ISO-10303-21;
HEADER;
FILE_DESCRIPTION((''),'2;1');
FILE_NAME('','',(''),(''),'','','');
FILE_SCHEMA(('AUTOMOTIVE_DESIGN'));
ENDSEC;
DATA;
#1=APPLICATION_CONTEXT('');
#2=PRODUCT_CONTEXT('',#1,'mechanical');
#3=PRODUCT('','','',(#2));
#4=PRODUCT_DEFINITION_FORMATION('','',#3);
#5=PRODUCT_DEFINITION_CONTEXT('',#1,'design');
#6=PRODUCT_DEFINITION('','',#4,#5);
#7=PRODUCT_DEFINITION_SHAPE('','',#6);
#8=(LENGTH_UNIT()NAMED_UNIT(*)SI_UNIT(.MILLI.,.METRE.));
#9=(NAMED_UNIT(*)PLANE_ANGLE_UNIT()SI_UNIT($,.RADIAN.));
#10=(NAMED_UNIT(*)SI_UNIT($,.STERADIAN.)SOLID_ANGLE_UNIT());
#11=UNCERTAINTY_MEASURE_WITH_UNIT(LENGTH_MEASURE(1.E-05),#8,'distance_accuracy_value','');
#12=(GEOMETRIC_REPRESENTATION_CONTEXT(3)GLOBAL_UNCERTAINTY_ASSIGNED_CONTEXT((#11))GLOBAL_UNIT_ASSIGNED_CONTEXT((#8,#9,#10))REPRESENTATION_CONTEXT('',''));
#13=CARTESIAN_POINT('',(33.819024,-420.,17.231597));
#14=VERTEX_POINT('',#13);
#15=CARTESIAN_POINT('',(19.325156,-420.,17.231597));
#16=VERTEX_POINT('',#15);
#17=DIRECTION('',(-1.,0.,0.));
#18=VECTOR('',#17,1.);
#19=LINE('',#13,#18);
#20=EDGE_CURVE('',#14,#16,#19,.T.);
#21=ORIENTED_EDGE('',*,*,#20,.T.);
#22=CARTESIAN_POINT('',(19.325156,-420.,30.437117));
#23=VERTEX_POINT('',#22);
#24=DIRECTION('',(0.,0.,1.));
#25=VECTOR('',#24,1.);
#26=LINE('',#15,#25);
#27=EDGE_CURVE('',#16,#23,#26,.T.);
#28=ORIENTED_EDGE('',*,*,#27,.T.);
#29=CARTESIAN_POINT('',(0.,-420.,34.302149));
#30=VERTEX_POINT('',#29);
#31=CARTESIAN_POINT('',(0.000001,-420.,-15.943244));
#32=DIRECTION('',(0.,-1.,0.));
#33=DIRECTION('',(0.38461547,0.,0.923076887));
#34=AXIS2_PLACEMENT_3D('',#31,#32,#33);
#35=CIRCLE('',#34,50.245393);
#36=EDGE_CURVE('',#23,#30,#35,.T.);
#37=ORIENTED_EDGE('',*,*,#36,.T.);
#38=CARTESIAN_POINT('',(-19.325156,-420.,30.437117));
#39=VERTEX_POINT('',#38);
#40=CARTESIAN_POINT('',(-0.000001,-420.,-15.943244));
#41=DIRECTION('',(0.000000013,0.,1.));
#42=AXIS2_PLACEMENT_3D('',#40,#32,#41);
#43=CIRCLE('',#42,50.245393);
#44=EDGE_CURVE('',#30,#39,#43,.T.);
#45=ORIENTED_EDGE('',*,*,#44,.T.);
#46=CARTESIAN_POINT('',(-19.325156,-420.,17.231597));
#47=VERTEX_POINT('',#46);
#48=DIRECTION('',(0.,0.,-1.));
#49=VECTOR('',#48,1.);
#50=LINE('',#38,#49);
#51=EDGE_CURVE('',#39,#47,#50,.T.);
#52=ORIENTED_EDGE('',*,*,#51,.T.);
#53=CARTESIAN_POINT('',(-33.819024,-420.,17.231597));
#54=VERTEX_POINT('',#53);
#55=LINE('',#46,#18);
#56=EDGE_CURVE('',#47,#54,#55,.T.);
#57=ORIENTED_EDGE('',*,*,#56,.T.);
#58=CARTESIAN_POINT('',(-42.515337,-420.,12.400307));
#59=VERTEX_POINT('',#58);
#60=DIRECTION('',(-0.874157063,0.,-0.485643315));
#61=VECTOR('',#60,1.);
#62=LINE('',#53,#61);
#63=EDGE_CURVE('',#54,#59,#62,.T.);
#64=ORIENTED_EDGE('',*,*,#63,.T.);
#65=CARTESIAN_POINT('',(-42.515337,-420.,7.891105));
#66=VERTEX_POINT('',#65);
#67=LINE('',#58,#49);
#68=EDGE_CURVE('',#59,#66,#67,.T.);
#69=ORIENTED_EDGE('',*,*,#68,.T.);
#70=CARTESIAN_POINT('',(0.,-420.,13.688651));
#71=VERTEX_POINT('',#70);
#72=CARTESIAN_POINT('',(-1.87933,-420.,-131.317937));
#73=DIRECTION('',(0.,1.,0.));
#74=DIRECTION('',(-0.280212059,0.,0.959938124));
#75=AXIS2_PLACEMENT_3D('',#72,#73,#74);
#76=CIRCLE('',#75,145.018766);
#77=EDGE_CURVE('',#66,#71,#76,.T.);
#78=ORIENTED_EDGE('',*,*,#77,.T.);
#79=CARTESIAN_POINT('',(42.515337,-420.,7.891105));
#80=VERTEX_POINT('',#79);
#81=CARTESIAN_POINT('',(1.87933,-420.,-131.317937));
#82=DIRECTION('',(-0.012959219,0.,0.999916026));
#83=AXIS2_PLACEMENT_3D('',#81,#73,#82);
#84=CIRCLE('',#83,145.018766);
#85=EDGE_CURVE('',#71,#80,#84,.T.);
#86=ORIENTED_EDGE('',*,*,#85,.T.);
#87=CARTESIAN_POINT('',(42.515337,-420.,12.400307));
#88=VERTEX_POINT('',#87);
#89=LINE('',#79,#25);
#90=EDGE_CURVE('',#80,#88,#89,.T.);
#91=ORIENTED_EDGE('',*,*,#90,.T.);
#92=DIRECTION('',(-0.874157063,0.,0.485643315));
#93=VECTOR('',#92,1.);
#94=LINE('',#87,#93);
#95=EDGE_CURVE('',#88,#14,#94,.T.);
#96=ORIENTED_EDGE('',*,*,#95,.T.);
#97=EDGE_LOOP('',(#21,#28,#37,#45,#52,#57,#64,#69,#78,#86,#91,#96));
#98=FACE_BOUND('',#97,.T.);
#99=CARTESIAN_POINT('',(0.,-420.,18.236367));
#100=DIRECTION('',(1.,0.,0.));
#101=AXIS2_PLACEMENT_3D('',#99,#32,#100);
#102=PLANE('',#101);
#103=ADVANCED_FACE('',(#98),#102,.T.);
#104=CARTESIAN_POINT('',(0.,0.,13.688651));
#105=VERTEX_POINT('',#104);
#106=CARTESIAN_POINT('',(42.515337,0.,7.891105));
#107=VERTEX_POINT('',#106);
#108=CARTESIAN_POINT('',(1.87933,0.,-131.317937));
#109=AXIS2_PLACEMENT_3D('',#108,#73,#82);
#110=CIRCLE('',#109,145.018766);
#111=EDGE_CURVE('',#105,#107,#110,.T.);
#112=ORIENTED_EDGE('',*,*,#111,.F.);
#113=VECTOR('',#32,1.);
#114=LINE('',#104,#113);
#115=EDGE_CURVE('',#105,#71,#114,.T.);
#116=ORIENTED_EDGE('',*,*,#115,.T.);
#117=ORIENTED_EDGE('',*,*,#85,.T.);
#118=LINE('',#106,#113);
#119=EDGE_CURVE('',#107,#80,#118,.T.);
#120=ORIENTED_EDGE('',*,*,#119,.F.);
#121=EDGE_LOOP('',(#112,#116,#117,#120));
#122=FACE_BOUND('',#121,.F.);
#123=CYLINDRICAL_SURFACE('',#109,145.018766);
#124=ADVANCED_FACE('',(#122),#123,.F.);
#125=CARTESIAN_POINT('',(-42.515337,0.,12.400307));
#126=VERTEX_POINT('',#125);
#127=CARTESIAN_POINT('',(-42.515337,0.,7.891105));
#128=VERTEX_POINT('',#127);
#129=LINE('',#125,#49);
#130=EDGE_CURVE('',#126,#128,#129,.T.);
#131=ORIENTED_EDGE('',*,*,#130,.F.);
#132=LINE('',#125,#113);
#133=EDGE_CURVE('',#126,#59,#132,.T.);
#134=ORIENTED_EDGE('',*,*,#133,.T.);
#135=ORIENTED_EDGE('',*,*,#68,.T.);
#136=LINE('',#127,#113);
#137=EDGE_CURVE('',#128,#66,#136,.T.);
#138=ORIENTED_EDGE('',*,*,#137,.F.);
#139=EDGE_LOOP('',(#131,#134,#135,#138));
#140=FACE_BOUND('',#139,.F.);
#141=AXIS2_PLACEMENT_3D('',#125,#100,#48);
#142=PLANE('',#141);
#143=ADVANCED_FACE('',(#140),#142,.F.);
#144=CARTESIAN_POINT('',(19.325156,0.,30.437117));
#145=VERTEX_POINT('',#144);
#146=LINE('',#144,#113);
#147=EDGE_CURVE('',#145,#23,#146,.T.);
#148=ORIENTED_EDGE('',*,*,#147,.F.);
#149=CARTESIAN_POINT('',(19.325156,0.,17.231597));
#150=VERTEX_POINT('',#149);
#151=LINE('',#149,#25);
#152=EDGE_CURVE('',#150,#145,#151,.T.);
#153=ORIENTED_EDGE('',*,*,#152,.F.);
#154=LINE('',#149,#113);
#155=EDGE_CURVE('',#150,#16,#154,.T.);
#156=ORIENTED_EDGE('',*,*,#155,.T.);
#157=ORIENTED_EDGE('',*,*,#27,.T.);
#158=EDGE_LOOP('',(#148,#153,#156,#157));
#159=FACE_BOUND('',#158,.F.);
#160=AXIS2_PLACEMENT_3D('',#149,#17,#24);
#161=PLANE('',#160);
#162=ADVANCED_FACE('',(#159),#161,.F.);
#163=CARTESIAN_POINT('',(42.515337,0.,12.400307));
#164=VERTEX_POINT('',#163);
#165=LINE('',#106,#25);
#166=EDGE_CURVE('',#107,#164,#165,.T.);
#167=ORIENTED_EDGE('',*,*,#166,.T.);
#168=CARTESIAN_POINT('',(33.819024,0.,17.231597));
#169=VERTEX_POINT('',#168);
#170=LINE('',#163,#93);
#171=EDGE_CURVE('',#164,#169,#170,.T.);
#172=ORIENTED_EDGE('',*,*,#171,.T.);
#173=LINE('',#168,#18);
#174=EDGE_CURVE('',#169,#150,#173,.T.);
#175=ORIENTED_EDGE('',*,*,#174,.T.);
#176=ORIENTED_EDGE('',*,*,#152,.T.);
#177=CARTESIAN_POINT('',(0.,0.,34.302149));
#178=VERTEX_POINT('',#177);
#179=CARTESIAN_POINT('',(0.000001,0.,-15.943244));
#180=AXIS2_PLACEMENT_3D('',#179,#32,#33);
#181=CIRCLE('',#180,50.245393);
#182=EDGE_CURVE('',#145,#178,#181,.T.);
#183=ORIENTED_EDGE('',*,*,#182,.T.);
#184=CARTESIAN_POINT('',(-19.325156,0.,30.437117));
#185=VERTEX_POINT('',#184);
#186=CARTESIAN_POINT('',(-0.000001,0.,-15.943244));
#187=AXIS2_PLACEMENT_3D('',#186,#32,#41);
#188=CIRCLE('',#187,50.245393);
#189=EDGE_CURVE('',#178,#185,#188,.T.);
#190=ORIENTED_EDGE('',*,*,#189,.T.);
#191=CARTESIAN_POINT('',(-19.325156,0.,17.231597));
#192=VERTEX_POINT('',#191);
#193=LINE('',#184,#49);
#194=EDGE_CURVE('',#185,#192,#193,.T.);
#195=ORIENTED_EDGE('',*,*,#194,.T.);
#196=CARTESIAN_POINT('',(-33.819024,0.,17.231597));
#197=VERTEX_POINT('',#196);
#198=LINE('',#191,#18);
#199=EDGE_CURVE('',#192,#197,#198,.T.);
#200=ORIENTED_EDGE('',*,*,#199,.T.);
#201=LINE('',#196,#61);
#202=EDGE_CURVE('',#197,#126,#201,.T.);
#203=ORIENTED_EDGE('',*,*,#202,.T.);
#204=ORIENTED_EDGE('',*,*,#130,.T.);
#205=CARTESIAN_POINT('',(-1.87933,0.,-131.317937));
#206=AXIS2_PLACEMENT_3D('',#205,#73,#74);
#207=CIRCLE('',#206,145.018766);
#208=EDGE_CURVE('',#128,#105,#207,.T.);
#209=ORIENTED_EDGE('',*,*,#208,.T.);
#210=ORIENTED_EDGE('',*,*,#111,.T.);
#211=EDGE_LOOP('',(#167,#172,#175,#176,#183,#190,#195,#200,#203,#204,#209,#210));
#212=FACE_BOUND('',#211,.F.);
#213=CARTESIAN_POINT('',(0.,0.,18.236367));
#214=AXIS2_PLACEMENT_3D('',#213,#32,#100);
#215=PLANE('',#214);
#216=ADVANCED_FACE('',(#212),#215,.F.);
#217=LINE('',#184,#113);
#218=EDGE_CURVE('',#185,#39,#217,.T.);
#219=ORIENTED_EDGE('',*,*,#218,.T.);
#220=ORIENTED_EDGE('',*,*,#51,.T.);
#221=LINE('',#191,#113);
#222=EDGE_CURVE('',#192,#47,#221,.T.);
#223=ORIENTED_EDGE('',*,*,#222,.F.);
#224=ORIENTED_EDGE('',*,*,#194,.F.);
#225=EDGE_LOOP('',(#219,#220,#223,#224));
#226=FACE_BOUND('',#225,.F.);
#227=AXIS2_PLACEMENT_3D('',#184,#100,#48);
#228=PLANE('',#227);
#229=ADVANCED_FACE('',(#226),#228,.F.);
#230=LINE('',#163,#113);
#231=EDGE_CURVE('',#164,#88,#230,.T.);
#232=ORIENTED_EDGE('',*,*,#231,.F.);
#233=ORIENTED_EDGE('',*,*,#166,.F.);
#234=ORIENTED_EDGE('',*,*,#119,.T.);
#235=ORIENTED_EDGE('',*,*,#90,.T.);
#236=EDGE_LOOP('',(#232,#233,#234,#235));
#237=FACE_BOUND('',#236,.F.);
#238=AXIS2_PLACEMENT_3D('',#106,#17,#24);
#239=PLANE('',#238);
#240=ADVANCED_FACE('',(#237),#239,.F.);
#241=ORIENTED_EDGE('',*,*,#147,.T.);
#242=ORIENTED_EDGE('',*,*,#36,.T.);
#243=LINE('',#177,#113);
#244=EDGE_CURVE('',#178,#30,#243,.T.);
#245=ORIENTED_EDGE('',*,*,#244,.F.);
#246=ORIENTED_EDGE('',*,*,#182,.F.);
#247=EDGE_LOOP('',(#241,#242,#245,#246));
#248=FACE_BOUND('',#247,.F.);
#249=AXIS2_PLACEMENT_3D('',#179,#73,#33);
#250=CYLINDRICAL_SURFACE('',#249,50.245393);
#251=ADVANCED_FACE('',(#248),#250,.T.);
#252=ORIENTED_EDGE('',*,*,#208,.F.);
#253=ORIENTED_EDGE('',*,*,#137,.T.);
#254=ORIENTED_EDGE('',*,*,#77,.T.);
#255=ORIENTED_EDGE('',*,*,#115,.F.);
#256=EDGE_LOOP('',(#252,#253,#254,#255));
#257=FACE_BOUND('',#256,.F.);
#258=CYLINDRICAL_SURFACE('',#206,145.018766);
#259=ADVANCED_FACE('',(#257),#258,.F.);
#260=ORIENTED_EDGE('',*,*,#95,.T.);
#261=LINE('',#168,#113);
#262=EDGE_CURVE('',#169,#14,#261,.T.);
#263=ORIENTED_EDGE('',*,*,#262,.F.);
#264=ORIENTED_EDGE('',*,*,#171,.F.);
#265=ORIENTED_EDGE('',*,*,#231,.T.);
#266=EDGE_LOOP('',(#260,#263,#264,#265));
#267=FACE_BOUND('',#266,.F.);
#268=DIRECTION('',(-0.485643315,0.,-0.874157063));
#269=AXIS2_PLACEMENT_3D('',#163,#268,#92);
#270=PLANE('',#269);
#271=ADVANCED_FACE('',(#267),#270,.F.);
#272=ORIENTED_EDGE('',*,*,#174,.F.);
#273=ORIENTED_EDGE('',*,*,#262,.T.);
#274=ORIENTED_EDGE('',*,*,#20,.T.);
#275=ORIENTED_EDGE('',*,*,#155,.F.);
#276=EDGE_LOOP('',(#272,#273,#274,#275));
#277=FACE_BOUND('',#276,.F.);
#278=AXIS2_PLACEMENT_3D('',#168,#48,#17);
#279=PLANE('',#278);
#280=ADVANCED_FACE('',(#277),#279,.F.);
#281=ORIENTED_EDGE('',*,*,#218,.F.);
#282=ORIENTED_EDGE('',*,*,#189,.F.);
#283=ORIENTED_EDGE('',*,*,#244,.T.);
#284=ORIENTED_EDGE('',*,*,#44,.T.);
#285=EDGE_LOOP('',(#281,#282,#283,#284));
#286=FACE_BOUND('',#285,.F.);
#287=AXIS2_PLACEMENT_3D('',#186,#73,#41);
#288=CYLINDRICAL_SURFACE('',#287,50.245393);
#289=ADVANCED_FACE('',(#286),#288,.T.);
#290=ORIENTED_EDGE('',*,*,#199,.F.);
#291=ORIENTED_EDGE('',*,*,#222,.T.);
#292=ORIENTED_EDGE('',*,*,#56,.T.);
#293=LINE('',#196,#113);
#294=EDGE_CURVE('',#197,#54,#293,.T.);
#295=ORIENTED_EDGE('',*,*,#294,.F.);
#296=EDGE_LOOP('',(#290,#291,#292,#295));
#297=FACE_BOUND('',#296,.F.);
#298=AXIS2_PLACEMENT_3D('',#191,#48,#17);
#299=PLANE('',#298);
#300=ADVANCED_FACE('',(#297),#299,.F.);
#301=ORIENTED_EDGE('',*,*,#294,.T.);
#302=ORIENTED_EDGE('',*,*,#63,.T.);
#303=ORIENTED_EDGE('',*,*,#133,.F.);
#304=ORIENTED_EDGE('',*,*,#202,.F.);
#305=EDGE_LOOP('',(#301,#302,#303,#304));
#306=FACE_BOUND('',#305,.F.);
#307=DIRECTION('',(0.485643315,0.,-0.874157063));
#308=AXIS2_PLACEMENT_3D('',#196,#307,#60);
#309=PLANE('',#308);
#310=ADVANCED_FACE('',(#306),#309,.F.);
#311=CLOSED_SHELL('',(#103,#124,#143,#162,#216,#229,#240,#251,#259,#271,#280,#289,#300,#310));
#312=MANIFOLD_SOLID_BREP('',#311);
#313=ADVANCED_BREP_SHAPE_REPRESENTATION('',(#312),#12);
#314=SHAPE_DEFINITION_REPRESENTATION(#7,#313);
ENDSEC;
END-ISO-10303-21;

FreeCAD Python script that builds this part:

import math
import FreeCAD as App
import Part
import Sketcher
from FreeCAD import Vector
Q = App.Units.Quantity

doc = App.newDocument("Part")
body = doc.addObject("PartDesign::Body", "Body")

sketch1 = body.newObject("Sketcher::SketchObject", "Sketch")
sketch1.AttachmentSupport = (doc.getObject("XZ_Plane"), [""])
sketch1.MapMode = "FlatFace"
sketch1.addGeometry(Part.LineSegment(Vector(19.3, 17.2, 0), Vector(19.3, 30.4, 0)), False)
sketch1.addGeometry(Part.ArcOfCircle(Part.Circle(Vector(0, -15.9, 0), Vector(0, 0, 1), 50.2), math.radians(67), math.radians(90)), False)
sketch1.addGeometry(Part.ArcOfCircle(Part.Circle(Vector(0, -15.9, 0), Vector(0, 0, 1), 50.2), math.radians(90), math.radians(113)), False)
sketch1.addGeometry(Part.LineSegment(Vector(-19.3, 30.4, 0), Vector(-19.3, 17.2, 0)), False)
sketch1.addGeometry(Part.LineSegment(Vector(-19.3, 17.2, 0), Vector(-33.8, 17.2, 0)), False)
sketch1.addGeometry(Part.LineSegment(Vector(-33.8, 17.2, 0), Vector(-42.5, 12.4, 0)), False)
sketch1.addGeometry(Part.LineSegment(Vector(-42.5, 12.4, 0), Vector(-42.5, 7.9, 0)), False)
sketch1.addGeometry(Part.ArcOfCircle(Part.Circle(Vector(-1.9, -131.3, 0), Vector(0, 0, 1), 145), math.radians(89.26), math.radians(106.27)), False)
sketch1.addGeometry(Part.ArcOfCircle(Part.Circle(Vector(1.9, -131.3, 0), Vector(0, 0, 1), 145), math.radians(73.73), math.radians(90.74)), False)
sketch1.addGeometry(Part.LineSegment(Vector(42.5, 7.9, 0), Vector(42.5, 12.4, 0)), False)
sketch1.addGeometry(Part.LineSegment(Vector(42.5, 12.4, 0), Vector(33.8, 17.2, 0)), False)
sketch1.addGeometry(Part.LineSegment(Vector(33.8, 17.2, 0), Vector(19.3, 17.2, 0)), False)
sketch1.addConstraint(Sketcher.Constraint("Coincident", 0, 2, 1, 1))
sketch1.addConstraint(Sketcher.Constraint("Tangent", 1, 2, 2, 1))
sketch1.addConstraint(Sketcher.Constraint("Coincident", 2, 2, 3, 1))
sketch1.addConstraint(Sketcher.Constraint("Coincident", 3, 2, 4, 1))
sketch1.addConstraint(Sketcher.Constraint("Coincident", 4, 2, 5, 1))
sketch1.addConstraint(Sketcher.Constraint("Coincident", 5, 2, 6, 1))
sketch1.addConstraint(Sketcher.Constraint("Coincident", 6, 2, 7, 2))
sketch1.addConstraint(Sketcher.Constraint("Coincident", 7, 1, 8, 2))
sketch1.addConstraint(Sketcher.Constraint("Coincident", 8, 1, 9, 1))
sketch1.addConstraint(Sketcher.Constraint("Coincident", 9, 2, 10, 1))
sketch1.addConstraint(Sketcher.Constraint("Coincident", 10, 2, 11, 1))
sketch1.addConstraint(Sketcher.Constraint("Coincident", 11, 2, 0, 1))
sketch1.addConstraint(Sketcher.Constraint("Vertical", 0))
sketch1.addConstraint(Sketcher.Constraint("Vertical", 3))
sketch1.addConstraint(Sketcher.Constraint("Horizontal", 4))
sketch1.addConstraint(Sketcher.Constraint("Vertical", 6))
sketch1.addConstraint(Sketcher.Constraint("Vertical", 9))
sketch1.addConstraint(Sketcher.Constraint("Horizontal", 11))
sketch1.addConstraint(Sketcher.Constraint("Equal", 1, 2))
sketch1.addConstraint(Sketcher.Constraint("Equal", 7, 8))
sketch1.addConstraint(Sketcher.Constraint("Symmetric", 7, 3, 8, 3, -2))
sketch1.addConstraint(Sketcher.Constraint("Symmetric", 0, 2, 2, 2, -2))
sketch1.addConstraint(Sketcher.Constraint("Symmetric", 5, 2, 9, 2, -2))
sketch1.addConstraint(Sketcher.Constraint("Symmetric", 4, 2, 10, 2, -2))
sketch1.addConstraint(Sketcher.Constraint("PointOnObject", 1, 2, -2))
sketch1.addConstraint(Sketcher.Constraint("Radius", 1, Q("50.245393 mm")))
sketch1.addConstraint(Sketcher.Constraint("Radius", 7, Q("145.018766 mm")))
sketch1.addConstraint(Sketcher.Constraint("DistanceY", 0, 1, 0, 2, Q("13.20552 mm")))
sketch1.addConstraint(Sketcher.Constraint("DistanceY", 8, 1, 9, 2, Q("4.509202 mm")))
sketch1.addConstraint(Sketcher.Constraint("DistanceX", 4, 2, 4, 1, Q("14.493868 mm")))
sketch1.addConstraint(Sketcher.Constraint("DistanceX", 7, 3, -1, 1, Q("1.87933 mm")))
sketch1.addConstraint(Sketcher.Constraint("DistanceY", -1, 1, 1, 2, Q("34.302149 mm")))
sketch1.addConstraint(Sketcher.Constraint("DistanceY", -1, 1, 7, 1, Q("13.688651 mm")))
sketch1.addConstraint(Sketcher.Constraint("DistanceY", 1, 3, 0, 2, Q("46.380361 mm")))
sketch1.addConstraint(Sketcher.Constraint("DistanceY", 5, 2, 4, 2, Q("4.83129 mm")))
pad1 = body.newObject("PartDesign::Pad", "Pad")
pad1.Profile = sketch1
pad1.Length = 420

doc.recompute()
